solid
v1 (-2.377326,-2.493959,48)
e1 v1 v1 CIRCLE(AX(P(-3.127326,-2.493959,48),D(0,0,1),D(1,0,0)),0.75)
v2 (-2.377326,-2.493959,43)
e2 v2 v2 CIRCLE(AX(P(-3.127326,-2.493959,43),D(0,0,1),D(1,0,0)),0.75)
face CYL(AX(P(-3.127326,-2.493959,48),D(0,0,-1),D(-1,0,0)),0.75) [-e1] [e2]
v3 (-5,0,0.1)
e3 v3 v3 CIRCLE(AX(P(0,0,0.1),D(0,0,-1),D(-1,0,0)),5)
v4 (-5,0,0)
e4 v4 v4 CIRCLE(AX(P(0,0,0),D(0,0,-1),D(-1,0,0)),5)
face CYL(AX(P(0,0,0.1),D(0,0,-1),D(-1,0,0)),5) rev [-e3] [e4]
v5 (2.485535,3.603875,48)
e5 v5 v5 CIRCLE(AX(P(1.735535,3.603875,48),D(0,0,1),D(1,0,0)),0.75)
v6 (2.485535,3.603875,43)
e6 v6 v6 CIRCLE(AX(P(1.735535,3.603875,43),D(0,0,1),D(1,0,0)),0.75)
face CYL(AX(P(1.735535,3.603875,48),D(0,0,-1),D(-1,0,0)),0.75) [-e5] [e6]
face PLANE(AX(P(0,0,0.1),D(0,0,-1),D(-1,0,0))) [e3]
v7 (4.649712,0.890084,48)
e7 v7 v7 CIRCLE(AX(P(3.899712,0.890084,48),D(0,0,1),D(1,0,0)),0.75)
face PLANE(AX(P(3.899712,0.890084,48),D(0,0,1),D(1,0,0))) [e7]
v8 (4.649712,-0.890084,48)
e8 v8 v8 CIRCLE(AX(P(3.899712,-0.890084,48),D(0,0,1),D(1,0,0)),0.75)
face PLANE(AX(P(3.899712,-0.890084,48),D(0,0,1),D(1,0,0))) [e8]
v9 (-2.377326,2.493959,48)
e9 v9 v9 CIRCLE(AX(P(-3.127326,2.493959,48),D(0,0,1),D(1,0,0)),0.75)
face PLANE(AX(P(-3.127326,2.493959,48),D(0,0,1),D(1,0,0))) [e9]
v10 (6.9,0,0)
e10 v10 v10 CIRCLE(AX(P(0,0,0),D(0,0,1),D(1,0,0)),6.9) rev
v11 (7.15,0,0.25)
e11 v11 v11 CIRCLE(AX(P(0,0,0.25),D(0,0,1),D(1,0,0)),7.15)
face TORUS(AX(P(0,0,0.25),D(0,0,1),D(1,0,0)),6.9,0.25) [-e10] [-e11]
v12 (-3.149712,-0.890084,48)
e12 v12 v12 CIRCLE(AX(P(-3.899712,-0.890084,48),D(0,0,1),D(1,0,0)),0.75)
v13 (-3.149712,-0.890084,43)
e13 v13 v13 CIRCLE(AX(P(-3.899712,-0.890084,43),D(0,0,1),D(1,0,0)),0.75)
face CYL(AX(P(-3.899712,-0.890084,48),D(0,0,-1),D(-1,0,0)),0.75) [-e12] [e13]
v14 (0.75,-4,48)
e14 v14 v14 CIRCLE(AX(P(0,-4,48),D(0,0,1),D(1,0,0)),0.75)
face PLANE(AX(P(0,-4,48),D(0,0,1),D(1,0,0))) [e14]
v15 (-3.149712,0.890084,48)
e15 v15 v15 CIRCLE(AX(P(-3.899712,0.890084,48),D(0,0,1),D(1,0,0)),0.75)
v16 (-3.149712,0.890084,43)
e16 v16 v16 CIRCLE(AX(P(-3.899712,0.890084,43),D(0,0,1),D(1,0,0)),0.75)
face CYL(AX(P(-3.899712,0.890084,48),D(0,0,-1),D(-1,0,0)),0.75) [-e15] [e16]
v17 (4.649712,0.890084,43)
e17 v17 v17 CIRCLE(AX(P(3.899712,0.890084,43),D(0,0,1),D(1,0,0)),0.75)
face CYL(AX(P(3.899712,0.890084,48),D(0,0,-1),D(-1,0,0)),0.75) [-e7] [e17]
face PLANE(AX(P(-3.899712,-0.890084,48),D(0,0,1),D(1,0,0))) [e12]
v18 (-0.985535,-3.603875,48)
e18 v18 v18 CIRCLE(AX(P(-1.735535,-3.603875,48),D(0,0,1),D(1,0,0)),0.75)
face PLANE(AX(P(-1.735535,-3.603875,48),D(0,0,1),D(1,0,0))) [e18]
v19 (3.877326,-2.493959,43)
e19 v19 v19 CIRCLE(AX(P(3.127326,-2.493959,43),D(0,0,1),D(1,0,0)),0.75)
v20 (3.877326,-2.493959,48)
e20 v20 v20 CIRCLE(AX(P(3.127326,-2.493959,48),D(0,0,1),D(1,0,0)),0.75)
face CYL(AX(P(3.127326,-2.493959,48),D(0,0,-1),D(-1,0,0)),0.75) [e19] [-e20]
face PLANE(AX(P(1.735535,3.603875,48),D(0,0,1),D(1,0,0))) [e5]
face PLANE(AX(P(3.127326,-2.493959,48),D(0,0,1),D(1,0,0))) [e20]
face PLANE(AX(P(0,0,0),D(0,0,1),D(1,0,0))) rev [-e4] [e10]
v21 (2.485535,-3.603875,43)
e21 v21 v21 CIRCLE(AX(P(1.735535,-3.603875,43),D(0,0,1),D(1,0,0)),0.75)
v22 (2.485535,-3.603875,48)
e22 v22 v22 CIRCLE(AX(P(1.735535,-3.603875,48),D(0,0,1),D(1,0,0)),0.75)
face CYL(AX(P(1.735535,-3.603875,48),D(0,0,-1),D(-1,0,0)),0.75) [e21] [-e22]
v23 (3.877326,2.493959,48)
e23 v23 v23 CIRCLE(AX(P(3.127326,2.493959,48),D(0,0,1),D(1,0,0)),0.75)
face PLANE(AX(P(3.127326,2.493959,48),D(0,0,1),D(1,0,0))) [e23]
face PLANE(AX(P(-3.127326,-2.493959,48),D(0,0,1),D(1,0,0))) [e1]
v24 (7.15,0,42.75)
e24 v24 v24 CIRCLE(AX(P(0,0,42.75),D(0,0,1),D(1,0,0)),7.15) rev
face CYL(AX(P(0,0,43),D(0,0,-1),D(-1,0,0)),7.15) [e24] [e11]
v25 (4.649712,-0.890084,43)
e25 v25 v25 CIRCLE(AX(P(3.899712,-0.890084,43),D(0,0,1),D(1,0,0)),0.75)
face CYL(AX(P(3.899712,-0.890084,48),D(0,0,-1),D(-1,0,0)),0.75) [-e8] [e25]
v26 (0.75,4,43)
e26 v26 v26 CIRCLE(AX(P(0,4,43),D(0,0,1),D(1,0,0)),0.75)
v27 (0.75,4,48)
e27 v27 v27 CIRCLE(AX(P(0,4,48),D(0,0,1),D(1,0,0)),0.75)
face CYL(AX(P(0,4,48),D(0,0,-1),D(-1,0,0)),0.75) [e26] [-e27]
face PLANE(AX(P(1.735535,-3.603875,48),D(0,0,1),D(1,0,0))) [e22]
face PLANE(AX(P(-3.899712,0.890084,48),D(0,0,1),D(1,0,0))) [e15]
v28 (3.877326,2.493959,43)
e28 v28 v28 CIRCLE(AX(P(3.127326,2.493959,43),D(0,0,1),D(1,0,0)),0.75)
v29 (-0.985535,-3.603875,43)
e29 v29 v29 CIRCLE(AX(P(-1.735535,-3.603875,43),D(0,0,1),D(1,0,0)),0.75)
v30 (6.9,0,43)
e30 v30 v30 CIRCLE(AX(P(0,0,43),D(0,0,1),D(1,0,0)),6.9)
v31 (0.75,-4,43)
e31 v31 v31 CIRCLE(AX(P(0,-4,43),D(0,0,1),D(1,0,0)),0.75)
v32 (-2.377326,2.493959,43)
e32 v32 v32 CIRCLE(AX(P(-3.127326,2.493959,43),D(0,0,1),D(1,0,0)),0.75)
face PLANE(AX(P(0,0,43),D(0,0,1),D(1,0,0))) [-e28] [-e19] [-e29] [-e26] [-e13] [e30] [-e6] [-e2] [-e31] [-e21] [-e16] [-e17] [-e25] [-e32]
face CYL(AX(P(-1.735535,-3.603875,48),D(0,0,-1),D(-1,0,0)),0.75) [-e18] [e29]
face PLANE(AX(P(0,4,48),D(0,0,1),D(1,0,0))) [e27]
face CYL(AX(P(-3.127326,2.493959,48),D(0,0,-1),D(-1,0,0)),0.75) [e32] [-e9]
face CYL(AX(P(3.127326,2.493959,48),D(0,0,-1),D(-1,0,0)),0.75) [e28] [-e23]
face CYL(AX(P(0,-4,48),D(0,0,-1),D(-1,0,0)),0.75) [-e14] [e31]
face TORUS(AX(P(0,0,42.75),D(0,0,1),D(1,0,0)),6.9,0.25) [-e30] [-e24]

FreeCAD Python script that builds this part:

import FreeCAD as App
import Part
import Sketcher
from FreeCAD import Vector
Q = App.Units.Quantity


def edges_at(feature, points):
    """Names of the edges that pass closest to the given points."""
    edges = feature.Shape.Edges
    near = lambda p: min(range(len(edges)), key=lambda i: edges[i].distToShape(Part.Vertex(*p))[0])
    return sorted({f"Edge{near(p) + 1}" for p in points})

doc = App.newDocument("Part")
body = doc.addObject("PartDesign::Body", "Body")

sketch1 = body.newObject("Sketcher::SketchObject", "Sketch")
sketch1.AttachmentSupport = (doc.getObject("XY_Plane"), [""])
sketch1.MapMode = "FlatFace"
sketch1.addGeometry(Part.Circle(Vector(0, 0, 0), Vector(0, 0, 1), 7), False)
sketch1.addConstraint(Sketcher.Constraint("Coincident", 0, 3, -1, 1))
sketch1.addConstraint(Sketcher.Constraint("Diameter", 0, Q("14.3 mm")))
pad1 = body.newObject("PartDesign::Pad", "Pad")
pad1.Profile = sketch1
pad1.Length = 43

sketch2 = body.newObject("Sketcher::SketchObject", "Sketch001")
sketch2.AttachmentSupport = (doc.getObject("XY_Plane"), [""])
sketch2.MapMode = "FlatFace"
sketch2.addGeometry(Part.Circle(Vector(0, 0, 0), Vector(0, 0, 1), 5), False)
sketch2.addConstraint(Sketcher.Constraint("Coincident", 0, 3, -1, 1))
sketch2.addConstraint(Sketcher.Constraint("Diameter", 0, Q("10 mm")))
pocket1 = body.newObject("PartDesign::Pocket", "Pocket")
pocket1.Profile = sketch2
pocket1.Length = 0.1
pocket1.Reversed = True

sketch3 = body.newObject("Sketcher::SketchObject", "Sketch002")
sketch3.AttachmentSupport = (doc.getObject("XY_Plane"), [""])
sketch3.MapMode = "FlatFace"
sketch3.AttachmentOffset = App.Placement(Vector(0, 0, 43), App.Rotation())
sketch3.addGeometry(Part.Circle(Vector(0, 4, 0), Vector(0, 0, 1), 0.8), False)
sketch3.addGeometry(Part.Circle(Vector(1.7, 3.6, 0), Vector(0, 0, 1), 0.8), False)
sketch3.addGeometry(Part.Circle(Vector(3.1, 2.5, 0), Vector(0, 0, 1), 0.8), False)
sketch3.addGeometry(Part.Circle(Vector(3.9, 0.9, 0), Vector(0, 0, 1), 0.8), False)
sketch3.addGeometry(Part.Circle(Vector(3.9, -0.9, 0), Vector(0, 0, 1), 0.8), False)
sketch3.addGeometry(Part.Circle(Vector(3.1, -2.5, 0), Vector(0, 0, 1), 0.8), False)
sketch3.addGeometry(Part.Circle(Vector(1.7, -3.6, 0), Vector(0, 0, 1), 0.8), False)
sketch3.addGeometry(Part.Circle(Vector(0, -4, 0), Vector(0, 0, 1), 0.8), False)
sketch3.addGeometry(Part.Circle(Vector(-1.7, -3.6, 0), Vector(0, 0, 1), 0.8), False)
sketch3.addGeometry(Part.Circle(Vector(-3.1, -2.5, 0), Vector(0, 0, 1), 0.8), False)
sketch3.addGeometry(Part.Circle(Vector(-3.9, -0.9, 0), Vector(0, 0, 1), 0.8), False)
sketch3.addGeometry(Part.Circle(Vector(-3.9, 0.9, 0), Vector(0, 0, 1), 0.8), False)
sketch3.addGeometry(Part.Circle(Vector(-3.1, 2.5, 0), Vector(0, 0, 1), 0.8), False)
sketch3.addConstraint(Sketcher.Constraint("Equal", 0, 1))
sketch3.addConstraint(Sketcher.Constraint("Equal", 1, 2))
sketch3.addConstraint(Sketcher.Constraint("Equal", 2, 3))
sketch3.addConstraint(Sketcher.Constraint("Equal", 3, 4))
sketch3.addConstraint(Sketcher.Constraint("Equal", 4, 5))
sketch3.addConstraint(Sketcher.Constraint("Equal", 5, 6))
sketch3.addConstraint(Sketcher.Constraint("Equal", 6, 7))
sketch3.addConstraint(Sketcher.Constraint("Equal", 7, 8))
sketch3.addConstraint(Sketcher.Constraint("Equal", 8, 9))
sketch3.addConstraint(Sketcher.Constraint("Equal", 9, 10))
sketch3.addConstraint(Sketcher.Constraint("Equal", 10, 11))
sketch3.addConstraint(Sketcher.Constraint("Equal", 11, 12))
sketch3.addConstraint(Sketcher.Constraint("Symmetric", 0, 3, 7, 3, -1, 1))
sketch3.addConstraint(Sketcher.Constraint("Symmetric", 1, 3, 8, 3, -1, 1))
sketch3.addConstraint(Sketcher.Constraint("Symmetric", 2, 3, 9, 3, -1, 1))
sketch3.addConstraint(Sketcher.Constraint("Symmetric", 3, 3, 10, 3, -1, 1))
sketch3.addConstraint(Sketcher.Constraint("Symmetric", 4, 3, 11, 3, -1, 1))
sketch3.addConstraint(Sketcher.Constraint("Symmetric", 5, 3, 12, 3, -1, 1))
sketch3.addConstraint(Sketcher.Constraint("Symmetric", 6, 3, 8, 3, -2))
sketch3.addConstraint(Sketcher.Constraint("Symmetric", 5, 3, 9, 3, -2))
sketch3.addConstraint(Sketcher.Constraint("Symmetric", 4, 3, 10, 3, -2))
sketch3.addConstraint(Sketcher.Constraint("PointOnObject", 0, 3, -2))
sketch3.addConstraint(Sketcher.Constraint("Diameter", 0, Q("1.5 mm")))
sketch3.addConstraint(Sketcher.Constraint("DistanceY", -1, 1, 0, 3, Q("4 mm")))
sketch3.addConstraint(Sketcher.Constraint("DistanceY", -1, 1, 2, 3, Q("2.493959 mm")))
sketch3.addConstraint(Sketcher.Constraint("DistanceX", -1, 1, 3, 3, Q("3.899712 mm")))
sketch3.addConstraint(Sketcher.Constraint("DistanceX", 1, 3, 2, 3, Q("1.391791 mm")))
sketch3.addConstraint(Sketcher.Constraint("DistanceY", 3, 3, 1, 3, Q("2.713792 mm")))
sketch3.addConstraint(Sketcher.Constraint("DistanceY", 4, 3, 1, 3, Q("4.493959 mm")))
sketch3.addConstraint(Sketcher.Constraint("DistanceX", 8, 3, 6, 3, Q("3.47107 mm")))
pad2 = body.newObject("PartDesign::Pad", "Pad001")
pad2.Profile = sketch3
pad2.Length = 5
doc.recompute()

fillet = body.newObject("PartDesign::Fillet", "Fillet")
fillet.Base = (pad2, edges_at(pad2, [(-7.15, 0, 0), (-7.15, 0, 43)]))
fillet.Radius = 0.25

doc.recompute()
